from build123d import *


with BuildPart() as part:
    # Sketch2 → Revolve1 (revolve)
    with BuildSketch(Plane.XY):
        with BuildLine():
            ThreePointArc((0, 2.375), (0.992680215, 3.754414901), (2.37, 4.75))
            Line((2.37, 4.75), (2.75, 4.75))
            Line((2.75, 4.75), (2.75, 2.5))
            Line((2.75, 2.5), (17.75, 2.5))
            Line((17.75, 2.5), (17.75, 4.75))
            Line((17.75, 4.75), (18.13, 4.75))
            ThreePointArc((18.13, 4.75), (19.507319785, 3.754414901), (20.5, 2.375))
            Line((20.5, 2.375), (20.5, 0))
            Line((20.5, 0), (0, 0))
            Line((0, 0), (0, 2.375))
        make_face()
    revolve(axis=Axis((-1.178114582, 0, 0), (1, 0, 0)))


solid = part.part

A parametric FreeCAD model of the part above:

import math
import FreeCAD as App
import Part
import Sketcher
from FreeCAD import Vector

doc = App.newDocument("Part")
body = doc.addObject("PartDesign::Body", "Body")

sketch1 = body.newObject("Sketcher::SketchObject", "Sketch")
sketch1.AttachmentSupport = (doc.getObject("XY_Plane"), [""])
sketch1.MapMode = "FlatFace"
sketch1.addGeometry(Part.ArcOfCircle(Part.Circle(Vector(4.76, 0, 0), Vector(0, 0, 1), 5.32), math.radians(117), math.radians(153)), False)
sketch1.addGeometry(Part.LineSegment(Vector(0, 2.38, 0), Vector(0, 0, 0)), False)
sketch1.addGeometry(Part.LineSegment(Vector(0, 0, 0), Vector(20.5, 0, 0)), False)
sketch1.addGeometry(Part.LineSegment(Vector(20.5, 0, 0), Vector(20.5, 2.38, 0)), False)
sketch1.addGeometry(Part.ArcOfCircle(Part.Circle(Vector(15.74, 0, 0), Vector(0, 0, 1), 5.32), math.radians(27), math.radians(63)), False)
sketch1.addGeometry(Part.LineSegment(Vector(18.13, 4.75, 0), Vector(17.75, 4.75, 0)), False)
sketch1.addGeometry(Part.LineSegment(Vector(17.75, 4.75, 0), Vector(17.75, 2.5, 0)), False)
sketch1.addGeometry(Part.LineSegment(Vector(17.75, 2.5, 0), Vector(2.75, 2.5, 0)), False)
sketch1.addGeometry(Part.LineSegment(Vector(2.75, 2.5, 0), Vector(2.75, 4.75, 0)), False)
sketch1.addGeometry(Part.LineSegment(Vector(2.75, 4.75, 0), Vector(2.37, 4.75, 0)), False)
sketch1.addConstraint(Sketcher.Constraint("Coincident", 0, 2, 1, 1))
sketch1.addConstraint(Sketcher.Constraint("Coincident", 1, 2, 2, 1))
sketch1.addConstraint(Sketcher.Constraint("Coincident", 2, 2, 3, 1))
sketch1.addConstraint(Sketcher.Constraint("Coincident", 3, 2, 4, 1))
sketch1.addConstraint(Sketcher.Constraint("Coincident", 4, 2, 5, 1))
sketch1.addConstraint(Sketcher.Constraint("Coincident", 5, 2, 6, 1))
sketch1.addConstraint(Sketcher.Constraint("Coincident", 6, 2, 7, 1))
sketch1.addConstraint(Sketcher.Constraint("Coincident", 7, 2, 8, 1))
sketch1.addConstraint(Sketcher.Constraint("Coincident", 8, 2, 9, 1))
sketch1.addConstraint(Sketcher.Constraint("Coincident", 9, 2, 0, 1))
sketch1.addConstraint(Sketcher.Constraint("Vertical", 1))
sketch1.addConstraint(Sketcher.Constraint("Horizontal", 2))
sketch1.addConstraint(Sketcher.Constraint("Vertical", 3))
sketch1.addConstraint(Sketcher.Constraint("Horizontal", 5))
sketch1.addConstraint(Sketcher.Constraint("Vertical", 6))
sketch1.addConstraint(Sketcher.Constraint("Horizontal", 7))
sketch1.addConstraint(Sketcher.Constraint("Vertical", 8))
sketch1.addConstraint(Sketcher.Constraint("Horizontal", 9))
sketch1.addConstraint(Sketcher.Constraint("Coincident", 1, 2, -1, 1))
sketch1.addConstraint(Sketcher.Constraint("Equal", 0, 4))
sketch1.addConstraint(Sketcher.Constraint("PointOnObject", 0, 3, -1))
sketch1.addConstraint(Sketcher.Constraint("PointOnObject", 4, 3, -1))
sketch1.addConstraint(Sketcher.Constraint("Horizontal", 0, 2, 3, 2))
sketch1.addConstraint(Sketcher.Constraint("Horizontal", 5, 2, 8, 2))
sketch1.addConstraint(Sketcher.Constraint("Equal", 5, 9))
sketch1.addConstraint(Sketcher.Constraint("DistanceX", 7, 2, 7, 1, 15.0))
sketch1.addConstraint(Sketcher.Constraint("DistanceX", 2, 1, 2, 2, 20.5))
sketch1.addConstraint(Sketcher.Constraint("DistanceX", 5, 2, 5, 1, 0.38))
sketch1.addConstraint(Sketcher.Constraint("DistanceY", 6, 2, 6, 1, 2.25))
sketch1.addConstraint(Sketcher.Constraint("DistanceY", -1, 1, 6, 2, 2.5))
sketch1.addConstraint(Sketcher.Constraint("DistanceY", 1, 2, 1, 1, 2.375))
revolution = body.newObject("PartDesign::Revolution", "Revolution")
revolution.Profile = sketch1
revolution.ReferenceAxis = (sketch1, ["H_Axis"])
revolution.Angle = 360

doc.recompute()
